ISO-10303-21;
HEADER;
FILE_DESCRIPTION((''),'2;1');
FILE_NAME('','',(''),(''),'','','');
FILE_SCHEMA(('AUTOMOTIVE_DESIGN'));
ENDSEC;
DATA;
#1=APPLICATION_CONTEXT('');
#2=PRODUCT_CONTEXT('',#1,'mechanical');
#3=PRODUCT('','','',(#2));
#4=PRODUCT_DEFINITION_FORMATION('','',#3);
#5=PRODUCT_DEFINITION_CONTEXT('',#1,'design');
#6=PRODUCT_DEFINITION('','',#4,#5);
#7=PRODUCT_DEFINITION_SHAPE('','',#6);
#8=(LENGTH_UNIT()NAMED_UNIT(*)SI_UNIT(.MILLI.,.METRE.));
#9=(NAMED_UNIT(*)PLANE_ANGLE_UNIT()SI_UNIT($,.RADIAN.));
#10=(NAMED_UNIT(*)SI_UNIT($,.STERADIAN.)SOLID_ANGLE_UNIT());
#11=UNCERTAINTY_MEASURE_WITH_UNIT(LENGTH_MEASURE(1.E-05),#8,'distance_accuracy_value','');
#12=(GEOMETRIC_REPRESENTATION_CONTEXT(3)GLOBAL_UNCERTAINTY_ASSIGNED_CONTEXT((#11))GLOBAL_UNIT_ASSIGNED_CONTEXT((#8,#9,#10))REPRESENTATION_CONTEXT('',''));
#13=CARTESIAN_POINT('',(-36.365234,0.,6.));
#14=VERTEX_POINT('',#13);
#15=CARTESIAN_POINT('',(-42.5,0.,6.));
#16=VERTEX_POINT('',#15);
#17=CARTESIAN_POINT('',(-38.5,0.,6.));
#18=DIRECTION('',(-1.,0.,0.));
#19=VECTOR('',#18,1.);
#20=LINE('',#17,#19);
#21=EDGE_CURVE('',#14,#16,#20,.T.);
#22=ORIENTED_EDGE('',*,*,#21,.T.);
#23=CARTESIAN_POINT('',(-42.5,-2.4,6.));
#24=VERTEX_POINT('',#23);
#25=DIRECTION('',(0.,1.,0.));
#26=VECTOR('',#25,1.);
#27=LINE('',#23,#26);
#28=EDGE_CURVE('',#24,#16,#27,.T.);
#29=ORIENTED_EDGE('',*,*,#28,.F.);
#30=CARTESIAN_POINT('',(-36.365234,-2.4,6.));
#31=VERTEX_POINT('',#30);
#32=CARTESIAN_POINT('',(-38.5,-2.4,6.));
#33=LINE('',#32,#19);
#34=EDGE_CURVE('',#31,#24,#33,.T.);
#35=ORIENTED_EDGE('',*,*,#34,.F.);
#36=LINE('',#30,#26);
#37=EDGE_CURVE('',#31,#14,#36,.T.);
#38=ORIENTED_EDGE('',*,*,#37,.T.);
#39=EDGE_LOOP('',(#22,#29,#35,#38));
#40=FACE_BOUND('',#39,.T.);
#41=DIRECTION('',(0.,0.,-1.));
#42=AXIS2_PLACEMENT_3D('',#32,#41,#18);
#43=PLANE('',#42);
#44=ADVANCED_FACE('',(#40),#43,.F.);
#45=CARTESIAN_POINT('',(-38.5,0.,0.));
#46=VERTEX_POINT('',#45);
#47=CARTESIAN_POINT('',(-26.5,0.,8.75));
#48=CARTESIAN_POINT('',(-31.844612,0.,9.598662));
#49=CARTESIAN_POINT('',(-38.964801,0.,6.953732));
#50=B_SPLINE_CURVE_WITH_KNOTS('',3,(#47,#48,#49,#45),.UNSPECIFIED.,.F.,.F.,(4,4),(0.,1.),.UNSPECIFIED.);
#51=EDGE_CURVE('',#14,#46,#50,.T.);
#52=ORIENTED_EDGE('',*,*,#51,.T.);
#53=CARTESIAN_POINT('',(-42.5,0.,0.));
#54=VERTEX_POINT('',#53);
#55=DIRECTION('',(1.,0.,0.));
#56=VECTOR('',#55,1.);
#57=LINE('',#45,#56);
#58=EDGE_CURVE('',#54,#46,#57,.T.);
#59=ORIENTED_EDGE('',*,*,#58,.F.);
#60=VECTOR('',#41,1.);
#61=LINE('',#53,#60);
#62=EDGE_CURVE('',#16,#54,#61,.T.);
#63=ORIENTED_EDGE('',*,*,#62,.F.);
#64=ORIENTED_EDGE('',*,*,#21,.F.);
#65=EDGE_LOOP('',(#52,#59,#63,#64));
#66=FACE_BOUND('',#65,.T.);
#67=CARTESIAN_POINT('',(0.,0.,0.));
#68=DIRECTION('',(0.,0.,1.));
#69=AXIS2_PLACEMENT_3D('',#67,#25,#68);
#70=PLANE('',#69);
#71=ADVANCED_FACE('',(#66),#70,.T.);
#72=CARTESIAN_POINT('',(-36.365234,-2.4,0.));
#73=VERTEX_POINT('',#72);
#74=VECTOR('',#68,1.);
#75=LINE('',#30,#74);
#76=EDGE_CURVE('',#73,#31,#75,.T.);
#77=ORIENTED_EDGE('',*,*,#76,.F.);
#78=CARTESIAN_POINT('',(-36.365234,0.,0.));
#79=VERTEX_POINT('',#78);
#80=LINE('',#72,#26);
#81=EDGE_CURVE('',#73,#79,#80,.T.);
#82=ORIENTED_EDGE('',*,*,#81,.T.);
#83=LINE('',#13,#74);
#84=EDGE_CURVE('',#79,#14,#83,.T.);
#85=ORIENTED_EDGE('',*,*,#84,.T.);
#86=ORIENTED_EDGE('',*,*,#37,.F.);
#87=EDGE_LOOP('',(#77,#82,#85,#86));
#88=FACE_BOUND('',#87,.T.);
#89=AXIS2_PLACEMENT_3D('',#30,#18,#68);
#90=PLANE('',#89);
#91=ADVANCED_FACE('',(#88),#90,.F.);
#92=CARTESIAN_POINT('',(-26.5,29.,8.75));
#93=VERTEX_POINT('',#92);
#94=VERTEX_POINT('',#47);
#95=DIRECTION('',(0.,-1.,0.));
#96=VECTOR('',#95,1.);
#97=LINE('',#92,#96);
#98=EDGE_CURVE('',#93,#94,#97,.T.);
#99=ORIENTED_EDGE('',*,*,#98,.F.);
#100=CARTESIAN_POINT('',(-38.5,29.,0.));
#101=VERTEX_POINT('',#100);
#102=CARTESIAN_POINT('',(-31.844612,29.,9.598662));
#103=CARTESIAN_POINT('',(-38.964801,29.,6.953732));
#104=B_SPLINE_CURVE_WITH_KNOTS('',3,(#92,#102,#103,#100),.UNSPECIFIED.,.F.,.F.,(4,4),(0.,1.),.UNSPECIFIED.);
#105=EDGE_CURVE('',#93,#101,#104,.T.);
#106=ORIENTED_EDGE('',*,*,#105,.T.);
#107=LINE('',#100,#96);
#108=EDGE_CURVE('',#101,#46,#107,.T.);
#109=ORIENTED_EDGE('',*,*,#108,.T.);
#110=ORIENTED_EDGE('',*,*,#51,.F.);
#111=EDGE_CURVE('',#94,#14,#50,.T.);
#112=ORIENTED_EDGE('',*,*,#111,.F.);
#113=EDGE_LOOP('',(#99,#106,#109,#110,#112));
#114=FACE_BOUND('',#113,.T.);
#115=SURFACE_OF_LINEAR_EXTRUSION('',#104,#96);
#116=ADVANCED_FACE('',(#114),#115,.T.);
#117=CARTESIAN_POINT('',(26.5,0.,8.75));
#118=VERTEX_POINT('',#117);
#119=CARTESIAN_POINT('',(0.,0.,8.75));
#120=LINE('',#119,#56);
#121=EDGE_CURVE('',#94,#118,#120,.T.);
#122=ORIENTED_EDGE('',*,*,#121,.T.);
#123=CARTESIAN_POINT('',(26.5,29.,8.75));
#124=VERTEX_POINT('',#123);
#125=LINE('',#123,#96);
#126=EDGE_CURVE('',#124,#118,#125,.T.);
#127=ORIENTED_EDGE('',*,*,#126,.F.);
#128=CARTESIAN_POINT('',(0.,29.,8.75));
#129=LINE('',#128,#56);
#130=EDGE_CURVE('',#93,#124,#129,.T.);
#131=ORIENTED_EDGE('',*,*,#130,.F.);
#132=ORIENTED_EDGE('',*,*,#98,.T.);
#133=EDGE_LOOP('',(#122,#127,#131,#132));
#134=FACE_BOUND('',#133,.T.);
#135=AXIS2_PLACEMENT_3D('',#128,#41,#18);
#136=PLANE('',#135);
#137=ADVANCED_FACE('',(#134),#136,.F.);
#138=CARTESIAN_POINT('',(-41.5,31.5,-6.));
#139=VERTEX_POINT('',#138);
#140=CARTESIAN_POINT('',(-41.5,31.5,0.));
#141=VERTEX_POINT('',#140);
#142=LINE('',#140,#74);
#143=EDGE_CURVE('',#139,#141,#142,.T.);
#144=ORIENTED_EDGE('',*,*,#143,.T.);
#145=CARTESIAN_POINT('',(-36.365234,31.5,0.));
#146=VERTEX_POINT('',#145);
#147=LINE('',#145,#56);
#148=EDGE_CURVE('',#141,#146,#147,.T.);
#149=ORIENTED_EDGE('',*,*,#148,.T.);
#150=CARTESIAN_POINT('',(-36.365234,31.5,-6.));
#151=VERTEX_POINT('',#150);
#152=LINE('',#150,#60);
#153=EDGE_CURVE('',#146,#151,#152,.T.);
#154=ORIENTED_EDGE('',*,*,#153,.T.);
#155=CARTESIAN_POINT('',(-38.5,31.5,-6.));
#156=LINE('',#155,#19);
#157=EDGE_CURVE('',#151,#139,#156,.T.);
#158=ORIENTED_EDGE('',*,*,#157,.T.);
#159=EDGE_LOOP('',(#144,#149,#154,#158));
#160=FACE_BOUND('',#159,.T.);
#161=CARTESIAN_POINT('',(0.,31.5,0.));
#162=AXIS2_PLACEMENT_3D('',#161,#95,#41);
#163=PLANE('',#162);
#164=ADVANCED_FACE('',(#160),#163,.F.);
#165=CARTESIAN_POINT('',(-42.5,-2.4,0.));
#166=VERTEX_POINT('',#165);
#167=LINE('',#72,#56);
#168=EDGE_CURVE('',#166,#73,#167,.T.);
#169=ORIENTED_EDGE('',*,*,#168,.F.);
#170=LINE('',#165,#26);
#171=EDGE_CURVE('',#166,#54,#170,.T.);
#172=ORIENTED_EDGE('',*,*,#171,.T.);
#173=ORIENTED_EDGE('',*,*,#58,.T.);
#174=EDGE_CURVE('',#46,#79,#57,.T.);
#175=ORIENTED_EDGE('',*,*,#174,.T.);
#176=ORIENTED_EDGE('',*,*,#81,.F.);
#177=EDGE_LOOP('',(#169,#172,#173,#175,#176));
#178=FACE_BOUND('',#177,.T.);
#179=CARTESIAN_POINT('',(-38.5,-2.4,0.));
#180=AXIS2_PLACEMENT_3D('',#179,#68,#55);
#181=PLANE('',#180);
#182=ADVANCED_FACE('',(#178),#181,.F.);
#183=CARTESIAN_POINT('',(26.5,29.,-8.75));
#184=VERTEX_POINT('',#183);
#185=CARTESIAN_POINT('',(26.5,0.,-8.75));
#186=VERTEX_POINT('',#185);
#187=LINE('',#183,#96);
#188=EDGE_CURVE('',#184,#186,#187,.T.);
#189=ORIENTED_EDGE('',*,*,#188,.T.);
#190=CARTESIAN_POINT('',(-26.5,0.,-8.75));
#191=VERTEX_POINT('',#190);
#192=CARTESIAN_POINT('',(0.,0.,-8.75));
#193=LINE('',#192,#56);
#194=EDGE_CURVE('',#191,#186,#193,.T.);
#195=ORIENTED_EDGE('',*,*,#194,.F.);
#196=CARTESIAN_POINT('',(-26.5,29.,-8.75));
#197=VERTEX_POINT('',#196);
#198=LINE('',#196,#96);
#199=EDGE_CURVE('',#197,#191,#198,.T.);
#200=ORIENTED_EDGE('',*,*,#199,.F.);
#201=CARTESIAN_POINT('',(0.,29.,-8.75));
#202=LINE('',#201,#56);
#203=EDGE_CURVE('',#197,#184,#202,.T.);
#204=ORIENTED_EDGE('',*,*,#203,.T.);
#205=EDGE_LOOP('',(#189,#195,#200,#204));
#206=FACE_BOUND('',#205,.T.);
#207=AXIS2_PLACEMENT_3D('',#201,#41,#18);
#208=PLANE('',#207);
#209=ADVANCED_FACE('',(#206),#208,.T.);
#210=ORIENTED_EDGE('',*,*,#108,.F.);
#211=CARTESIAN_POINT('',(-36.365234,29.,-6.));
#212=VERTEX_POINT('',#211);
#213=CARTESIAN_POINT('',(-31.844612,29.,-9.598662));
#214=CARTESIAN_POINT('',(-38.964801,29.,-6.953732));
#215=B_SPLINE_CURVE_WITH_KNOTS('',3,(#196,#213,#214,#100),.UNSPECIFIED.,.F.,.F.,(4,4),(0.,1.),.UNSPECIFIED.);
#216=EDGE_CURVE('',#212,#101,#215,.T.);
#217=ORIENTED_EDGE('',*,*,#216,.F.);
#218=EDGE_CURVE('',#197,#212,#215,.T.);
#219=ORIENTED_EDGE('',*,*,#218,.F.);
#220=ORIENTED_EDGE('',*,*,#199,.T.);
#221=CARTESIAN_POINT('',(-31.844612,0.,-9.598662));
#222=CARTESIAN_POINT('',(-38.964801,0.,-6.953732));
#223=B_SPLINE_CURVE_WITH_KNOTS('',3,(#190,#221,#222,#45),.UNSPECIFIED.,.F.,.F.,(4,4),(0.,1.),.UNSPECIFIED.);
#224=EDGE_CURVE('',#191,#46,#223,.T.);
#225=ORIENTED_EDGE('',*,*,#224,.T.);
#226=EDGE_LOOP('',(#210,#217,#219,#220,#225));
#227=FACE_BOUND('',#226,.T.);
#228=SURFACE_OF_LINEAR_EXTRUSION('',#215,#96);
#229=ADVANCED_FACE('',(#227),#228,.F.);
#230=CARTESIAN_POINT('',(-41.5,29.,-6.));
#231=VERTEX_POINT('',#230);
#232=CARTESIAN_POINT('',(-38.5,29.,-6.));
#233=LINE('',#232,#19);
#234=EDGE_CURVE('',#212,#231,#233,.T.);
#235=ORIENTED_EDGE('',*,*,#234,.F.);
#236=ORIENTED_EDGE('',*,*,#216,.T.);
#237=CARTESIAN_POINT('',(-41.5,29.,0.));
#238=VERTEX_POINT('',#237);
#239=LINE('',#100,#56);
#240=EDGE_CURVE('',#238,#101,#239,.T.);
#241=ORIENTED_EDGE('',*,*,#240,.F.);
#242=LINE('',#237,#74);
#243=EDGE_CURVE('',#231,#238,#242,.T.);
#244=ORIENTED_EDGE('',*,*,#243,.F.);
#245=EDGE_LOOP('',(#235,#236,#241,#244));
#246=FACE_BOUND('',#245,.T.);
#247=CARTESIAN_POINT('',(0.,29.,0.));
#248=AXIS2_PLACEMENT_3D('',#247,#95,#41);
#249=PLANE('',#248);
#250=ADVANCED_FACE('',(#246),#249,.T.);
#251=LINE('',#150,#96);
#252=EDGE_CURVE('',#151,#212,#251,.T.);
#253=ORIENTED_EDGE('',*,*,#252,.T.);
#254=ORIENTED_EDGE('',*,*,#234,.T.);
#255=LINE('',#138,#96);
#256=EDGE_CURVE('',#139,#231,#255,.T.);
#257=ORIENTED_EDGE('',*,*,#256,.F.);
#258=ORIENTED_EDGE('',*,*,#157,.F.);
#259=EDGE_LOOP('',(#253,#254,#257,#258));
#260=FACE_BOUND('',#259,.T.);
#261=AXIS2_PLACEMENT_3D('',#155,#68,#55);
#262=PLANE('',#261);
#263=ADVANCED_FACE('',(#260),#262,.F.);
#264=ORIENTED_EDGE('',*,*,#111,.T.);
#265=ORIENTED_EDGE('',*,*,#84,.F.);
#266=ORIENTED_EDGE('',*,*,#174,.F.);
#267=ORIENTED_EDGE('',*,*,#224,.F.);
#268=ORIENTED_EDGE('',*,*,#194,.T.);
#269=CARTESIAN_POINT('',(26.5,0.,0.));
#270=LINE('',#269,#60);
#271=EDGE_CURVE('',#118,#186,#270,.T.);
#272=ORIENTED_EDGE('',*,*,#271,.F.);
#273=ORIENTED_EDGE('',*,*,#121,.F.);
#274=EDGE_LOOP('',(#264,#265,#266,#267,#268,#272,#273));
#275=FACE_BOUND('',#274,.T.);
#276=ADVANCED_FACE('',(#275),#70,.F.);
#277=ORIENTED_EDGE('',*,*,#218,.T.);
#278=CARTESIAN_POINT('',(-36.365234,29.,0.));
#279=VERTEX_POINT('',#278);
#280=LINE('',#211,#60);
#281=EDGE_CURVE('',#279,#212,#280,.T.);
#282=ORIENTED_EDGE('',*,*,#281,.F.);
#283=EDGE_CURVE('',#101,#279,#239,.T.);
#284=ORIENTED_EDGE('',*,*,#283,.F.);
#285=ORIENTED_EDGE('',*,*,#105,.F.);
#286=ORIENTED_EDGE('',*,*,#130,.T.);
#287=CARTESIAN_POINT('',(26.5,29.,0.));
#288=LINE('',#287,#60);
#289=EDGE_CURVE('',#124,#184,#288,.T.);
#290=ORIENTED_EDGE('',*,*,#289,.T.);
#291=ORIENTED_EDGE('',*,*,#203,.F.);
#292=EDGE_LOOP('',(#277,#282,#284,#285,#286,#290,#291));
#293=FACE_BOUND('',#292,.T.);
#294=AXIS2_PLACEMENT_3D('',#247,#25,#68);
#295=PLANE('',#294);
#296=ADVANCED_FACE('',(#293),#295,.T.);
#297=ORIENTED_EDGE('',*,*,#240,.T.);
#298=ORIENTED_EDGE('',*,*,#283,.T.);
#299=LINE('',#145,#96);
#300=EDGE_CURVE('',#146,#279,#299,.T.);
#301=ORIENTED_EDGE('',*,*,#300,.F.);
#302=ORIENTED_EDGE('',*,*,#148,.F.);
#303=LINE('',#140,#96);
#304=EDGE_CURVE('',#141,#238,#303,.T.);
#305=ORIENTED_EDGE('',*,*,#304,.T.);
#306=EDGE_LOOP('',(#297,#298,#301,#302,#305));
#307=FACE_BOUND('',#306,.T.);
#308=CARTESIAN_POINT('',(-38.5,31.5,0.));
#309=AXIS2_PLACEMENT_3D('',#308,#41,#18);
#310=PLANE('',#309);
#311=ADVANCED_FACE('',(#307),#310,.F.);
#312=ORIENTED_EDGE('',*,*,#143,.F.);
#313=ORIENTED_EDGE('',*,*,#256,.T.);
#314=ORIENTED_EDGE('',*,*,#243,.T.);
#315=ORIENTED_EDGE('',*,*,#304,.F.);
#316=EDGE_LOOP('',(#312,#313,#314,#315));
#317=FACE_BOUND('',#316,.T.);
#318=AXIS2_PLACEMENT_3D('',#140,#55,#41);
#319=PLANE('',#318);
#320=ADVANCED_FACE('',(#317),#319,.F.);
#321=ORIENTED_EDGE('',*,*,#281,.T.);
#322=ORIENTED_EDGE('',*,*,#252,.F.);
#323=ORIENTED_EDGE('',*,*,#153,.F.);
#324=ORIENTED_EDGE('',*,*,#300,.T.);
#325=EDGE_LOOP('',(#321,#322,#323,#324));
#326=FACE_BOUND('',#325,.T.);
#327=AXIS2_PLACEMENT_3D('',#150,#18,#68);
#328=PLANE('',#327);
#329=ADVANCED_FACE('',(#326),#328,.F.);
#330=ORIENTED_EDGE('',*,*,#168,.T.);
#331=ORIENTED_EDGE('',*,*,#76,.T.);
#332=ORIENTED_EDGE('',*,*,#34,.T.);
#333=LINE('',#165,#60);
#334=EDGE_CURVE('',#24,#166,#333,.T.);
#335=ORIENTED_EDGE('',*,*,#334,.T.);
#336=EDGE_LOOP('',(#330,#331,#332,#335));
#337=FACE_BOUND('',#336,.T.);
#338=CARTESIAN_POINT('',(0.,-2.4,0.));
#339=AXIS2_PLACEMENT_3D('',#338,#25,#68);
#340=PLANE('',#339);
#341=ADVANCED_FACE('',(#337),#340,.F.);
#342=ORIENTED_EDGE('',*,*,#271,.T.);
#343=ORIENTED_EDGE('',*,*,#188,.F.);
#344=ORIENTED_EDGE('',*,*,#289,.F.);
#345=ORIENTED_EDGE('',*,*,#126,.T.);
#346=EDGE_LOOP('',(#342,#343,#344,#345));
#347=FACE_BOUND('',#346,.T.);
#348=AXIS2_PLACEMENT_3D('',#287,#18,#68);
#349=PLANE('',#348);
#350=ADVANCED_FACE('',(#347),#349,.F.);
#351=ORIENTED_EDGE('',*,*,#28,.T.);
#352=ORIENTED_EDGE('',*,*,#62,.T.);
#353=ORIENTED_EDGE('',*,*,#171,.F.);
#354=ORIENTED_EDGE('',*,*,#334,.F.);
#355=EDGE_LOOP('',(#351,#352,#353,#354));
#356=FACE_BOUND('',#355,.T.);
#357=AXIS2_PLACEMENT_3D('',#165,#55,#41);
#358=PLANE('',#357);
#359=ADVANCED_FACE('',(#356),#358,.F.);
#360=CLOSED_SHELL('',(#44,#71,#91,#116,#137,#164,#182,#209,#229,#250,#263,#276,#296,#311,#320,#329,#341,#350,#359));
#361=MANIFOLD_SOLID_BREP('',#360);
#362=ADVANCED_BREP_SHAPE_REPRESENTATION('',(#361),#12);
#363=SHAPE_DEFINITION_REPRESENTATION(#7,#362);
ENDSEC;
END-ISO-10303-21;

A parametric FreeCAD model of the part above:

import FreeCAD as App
import Part
import Sketcher
from FreeCAD import Vector
Q = App.Units.Quantity


def add_polygon(sketch, points):
    """Adds a closed chain of lines whose ends are joined by coincident constraints."""
    first, n = sketch.GeometryCount, len(points)
    for a, b in zip(points, points[1:] + points[:1]):
        sketch.addGeometry(Part.LineSegment(App.Vector(*a, 0), App.Vector(*b, 0)), False)
    for i in range(n):
        sketch.addConstraint(Sketcher.Constraint("Coincident", first + i, 2, first + (i + 1) % n, 1))

doc = App.newDocument("Part")
body = doc.addObject("PartDesign::Body", "Body")

# Sketch on XZ plane
sketch1 = body.newObject("Sketcher::SketchObject", "Sketch")
sketch1.AttachmentSupport = (doc.getObject("XZ_Plane"), [""])
sketch1.MapMode = "FlatFace"
sketch1.addGeometry([
    Part.LineSegment(Vector(-26.5, 8.75, 0), Vector(26.5, 8.75, 0)),  # 0
    Part.LineSegment(Vector(26.5, 8.75, 0), Vector(26.5, -8.75, 0)),  # 1
    Part.LineSegment(Vector(26.5, -8.75, 0), Vector(-26.5, -8.75, 0)),  # 2
    Part.BSplineCurve([Vector(-26.5, -8.75, 0), Vector(-31.844612, -9.598662, 0), Vector(-38.964801, -6.953732, 0), Vector(-38.5, 0, 0)], [4, 4], [0, 1], False, 3, [1, 1, 1, 1], False),  # 3
    Part.BSplineCurve([Vector(-26.5, 8.75, 0), Vector(-31.844612, 9.598662, 0), Vector(-38.964801, 6.953732, 0), Vector(-38.5, 0, 0)], [4, 4], [0, 1], False, 3, [1, 1, 1, 1], False),  # 4
], False)
sketch1.addConstraint([
    Sketcher.Constraint("Block", 3),
    Sketcher.Constraint("Block", 4),
    Sketcher.Constraint("Coincident", 0, 2, 1, 1),
    Sketcher.Constraint("Coincident", 1, 2, 2, 1),
    Sketcher.Constraint("Coincident", 2, 2, 3, 1),
    Sketcher.Constraint("Coincident", 4, 1, 0, 1),
    Sketcher.Constraint("Horizontal", 0),
    Sketcher.Constraint("Vertical", 1),
    Sketcher.Constraint("Horizontal", 2),
    Sketcher.Constraint("DistanceX", 0, 1, 0, 2, Q("53 mm")),
])
pad1 = body.newObject("PartDesign::Pad", "Pad")
pad1.Profile = sketch1
pad1.Length = 29
pad1.Reversed = True

# Sketch on XZ plane
sketch2 = body.newObject("Sketcher::SketchObject", "Sketch001")
sketch2.AttachmentSupport = (doc.getObject("XZ_Plane"), [""])
sketch2.MapMode = "FlatFace"
sketch2.AttachmentOffset = App.Placement(Vector(0, 0, -29), App.Rotation())
add_polygon(sketch2, [(-36, -6), (-42, -6), (-42, 0), (-36, 0)])  # lines 0-3
sketch2.addConstraint([
    Sketcher.Constraint("Horizontal", 0),
    Sketcher.Constraint("Vertical", 1),
    Sketcher.Constraint("Horizontal", 2),
    Sketcher.Constraint("Vertical", 3),
    Sketcher.Constraint("PointOnObject", 1, 2, -1),
    Sketcher.Constraint("DistanceY", 1, 1, 1, 2, Q("6 mm")),
    Sketcher.Constraint("DistanceX", 0, 2, -1, 1, Q("41.5 mm")),
    Sketcher.Constraint("DistanceX", 0, 2, 0, 1, Q("5.134766 mm")),
])
pad2 = body.newObject("PartDesign::Pad", "Pad001")
pad2.Profile = sketch2
pad2.Length = 2.5
pad2.Reversed = True

# Sketch on XZ plane
sketch3 = body.newObject("Sketcher::SketchObject", "Sketch002")
sketch3.AttachmentSupport = (doc.getObject("XZ_Plane"), [""])
sketch3.MapMode = "FlatFace"
add_polygon(sketch3, [(-36, 6), (-42, 6), (-42, 0), (-36, 0)])  # lines 0-3
sketch3.addConstraint([
    Sketcher.Constraint("Horizontal", 0),
    Sketcher.Constraint("Vertical", 1),
    Sketcher.Constraint("Horizontal", 2),
    Sketcher.Constraint("Vertical", 3),
    Sketcher.Constraint("PointOnObject", 1, 2, -1),
    Sketcher.Constraint("DistanceY", 1, 2, 1, 1, Q("6 mm")),
    Sketcher.Constraint("DistanceX", 0, 2, -1, 1, Q("42.5 mm")),
    Sketcher.Constraint("DistanceX", 0, 2, 0, 1, Q("6.134766 mm")),
])
pad3 = body.newObject("PartDesign::Pad", "Pad002")
pad3.Profile = sketch3
pad3.Length = 2.4

doc.recompute()
